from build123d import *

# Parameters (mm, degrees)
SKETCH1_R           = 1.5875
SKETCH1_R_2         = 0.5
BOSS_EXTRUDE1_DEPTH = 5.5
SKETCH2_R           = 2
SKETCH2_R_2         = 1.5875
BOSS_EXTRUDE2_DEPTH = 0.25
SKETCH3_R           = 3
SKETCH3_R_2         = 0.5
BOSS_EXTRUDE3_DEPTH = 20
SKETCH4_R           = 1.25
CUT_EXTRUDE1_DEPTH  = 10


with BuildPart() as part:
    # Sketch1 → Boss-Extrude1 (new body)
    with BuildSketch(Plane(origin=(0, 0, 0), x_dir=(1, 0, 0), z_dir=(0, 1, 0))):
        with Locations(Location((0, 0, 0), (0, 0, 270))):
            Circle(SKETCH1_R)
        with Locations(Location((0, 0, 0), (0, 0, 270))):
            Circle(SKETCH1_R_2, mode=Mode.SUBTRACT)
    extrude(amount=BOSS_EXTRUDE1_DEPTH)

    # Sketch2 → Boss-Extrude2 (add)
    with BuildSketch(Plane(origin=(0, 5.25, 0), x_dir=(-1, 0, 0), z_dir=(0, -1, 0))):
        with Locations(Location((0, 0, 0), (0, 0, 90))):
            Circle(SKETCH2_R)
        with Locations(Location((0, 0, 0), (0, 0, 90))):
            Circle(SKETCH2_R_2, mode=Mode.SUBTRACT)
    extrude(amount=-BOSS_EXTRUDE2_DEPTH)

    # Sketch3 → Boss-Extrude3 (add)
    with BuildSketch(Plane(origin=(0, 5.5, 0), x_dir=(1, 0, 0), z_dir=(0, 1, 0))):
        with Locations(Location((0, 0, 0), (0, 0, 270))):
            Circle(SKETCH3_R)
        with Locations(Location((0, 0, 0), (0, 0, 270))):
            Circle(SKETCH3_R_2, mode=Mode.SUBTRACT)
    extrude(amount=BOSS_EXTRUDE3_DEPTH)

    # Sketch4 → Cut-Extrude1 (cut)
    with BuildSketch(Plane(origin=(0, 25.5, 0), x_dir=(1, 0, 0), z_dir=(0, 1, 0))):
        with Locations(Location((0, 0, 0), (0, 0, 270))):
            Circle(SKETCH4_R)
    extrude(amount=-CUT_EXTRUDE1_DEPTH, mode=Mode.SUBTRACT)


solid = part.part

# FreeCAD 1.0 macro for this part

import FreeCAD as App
import Part
import Sketcher
from FreeCAD import Vector
Q = App.Units.Quantity

doc = App.newDocument("Part")
body = doc.addObject("PartDesign::Body", "Body")

# Sketch on XZ plane
sketch1 = body.newObject("Sketcher::SketchObject", "Sketch")
sketch1.AttachmentSupport = (doc.getObject("XZ_Plane"), [""])
sketch1.MapMode = "FlatFace"
sketch1.addGeometry([
    Part.Circle(Vector(0, 0, 0), Vector(0, 0, 1), 1.5875),
    Part.Circle(Vector(0, 0, 0), Vector(0, 0, 1), 0.5),
], False)
sketch1.addConstraint([
    Sketcher.Constraint("Coincident", 0, 3, -1, 1),
    Sketcher.Constraint("Coincident", 1, 3, -1, 1),
    Sketcher.Constraint("Diameter", 1, Q("1 mm")),
    Sketcher.Constraint("Diameter", 0, Q("3.175 mm")),
])
pad1 = body.newObject("PartDesign::Pad", "Pad")
pad1.Profile = sketch1
pad1.Length = 5.5
pad1.Reversed = True

# Sketch on XZ plane
sketch2 = body.newObject("Sketcher::SketchObject", "Sketch001")
sketch2.AttachmentSupport = (doc.getObject("XZ_Plane"), [""])
sketch2.MapMode = "FlatFace"
sketch2.AttachmentOffset = App.Placement(Vector(0, 0, -5.25), App.Rotation())
sketch2.addGeometry([
    Part.Circle(Vector(0, 0, 0), Vector(0, 0, 1), 2),
    Part.Circle(Vector(0, 0, 0), Vector(0, 0, 1), 1.5875),
], False)
sketch2.addConstraint([
    Sketcher.Constraint("Coincident", 0, 3, -1, 1),
    Sketcher.Constraint("Coincident", 1, 3, -1, 1),
    Sketcher.Constraint("Diameter", 0, Q("4 mm")),
    Sketcher.Constraint("Diameter", 1, Q("3.175 mm")),
])
pad2 = body.newObject("PartDesign::Pad", "Pad001")
pad2.Profile = sketch2
pad2.Length = 0.25
pad2.Reversed = True

# Sketch on XZ plane
sketch3 = body.newObject("Sketcher::SketchObject", "Sketch002")
sketch3.AttachmentSupport = (doc.getObject("XZ_Plane"), [""])
sketch3.MapMode = "FlatFace"
sketch3.AttachmentOffset = App.Placement(Vector(0, 0, -5.5), App.Rotation())
sketch3.addGeometry([
    Part.Circle(Vector(0, 0, 0), Vector(0, 0, 1), 3),
    Part.Circle(Vector(0, 0, 0), Vector(0, 0, 1), 0.5),
], False)
sketch3.addConstraint([
    Sketcher.Constraint("Coincident", 0, 3, -1, 1),
    Sketcher.Constraint("Coincident", 1, 3, -1, 1),
    Sketcher.Constraint("Diameter", 0, Q("6 mm")),
    Sketcher.Constraint("Diameter", 1, Q("1 mm")),
])
pad3 = body.newObject("PartDesign::Pad", "Pad002")
pad3.Profile = sketch3
pad3.Length = 20
pad3.Reversed = True

# Sketch on XZ plane
sketch4 = body.newObject("Sketcher::SketchObject", "Sketch003")
sketch4.AttachmentSupport = (doc.getObject("XZ_Plane"), [""])
sketch4.MapMode = "FlatFace"
sketch4.AttachmentOffset = App.Placement(Vector(0, 0, -25.5), App.Rotation())
sketch4.addGeometry(Part.Circle(Vector(0, 0, 0), Vector(0, 0, 1), 1.25), False)
sketch4.addConstraint([
    Sketcher.Constraint("Coincident", 0, 3, -1, 1),
    Sketcher.Constraint("Diameter", 0, Q("2.5 mm")),
])
pocket1 = body.newObject("PartDesign::Pocket", "Pocket")
pocket1.Profile = sketch4
pocket1.Length = 10
pocket1.Reversed = True

doc.recompute()
